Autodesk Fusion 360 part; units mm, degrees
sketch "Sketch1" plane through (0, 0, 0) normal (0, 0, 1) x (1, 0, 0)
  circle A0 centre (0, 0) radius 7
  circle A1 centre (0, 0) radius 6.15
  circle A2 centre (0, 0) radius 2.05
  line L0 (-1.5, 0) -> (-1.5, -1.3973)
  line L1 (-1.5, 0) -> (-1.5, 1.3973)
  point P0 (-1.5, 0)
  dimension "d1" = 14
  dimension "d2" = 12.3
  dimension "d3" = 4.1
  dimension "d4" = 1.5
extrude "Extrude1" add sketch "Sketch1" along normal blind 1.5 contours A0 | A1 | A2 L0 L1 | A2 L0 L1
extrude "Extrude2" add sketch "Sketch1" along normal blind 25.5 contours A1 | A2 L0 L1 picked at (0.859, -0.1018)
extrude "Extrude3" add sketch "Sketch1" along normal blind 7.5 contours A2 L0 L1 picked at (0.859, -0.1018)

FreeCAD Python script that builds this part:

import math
import FreeCAD as App
import Part
import Sketcher

V = App.Vector

doc = App.newDocument("Part")
body = doc.addObject("PartDesign::Body", "Body")

# Sketch on XY plane
sketch1 = doc.addObject("Sketcher::SketchObject", "Sketch")
body.addObject(sketch1)
sketch1.AttachmentSupport = (doc.XY_Plane, [""])
sketch1.MapMode = "FlatFace"
sketch1.addGeometry(Part.Circle(V(0, 0, 0), V(0, 0, 1), 7), False)
sketch1.addConstraint([
    Sketcher.Constraint("Coincident", 0, 3, -1, 1),
    Sketcher.Constraint("Diameter", 0, 14.0),
])
pad1 = doc.addObject("PartDesign::Pad", "Pad")
body.addObject(pad1)
pad1.Profile = sketch1
pad1.Length = 1.5

# Sketch on XY plane
sketch2 = doc.addObject("Sketcher::SketchObject", "Sketch001")
body.addObject(sketch2)
sketch2.AttachmentSupport = (doc.XY_Plane, [""])
sketch2.MapMode = "FlatFace"
sketch2.addGeometry([
    Part.Circle(V(0, 0, 0), V(0, 0, 1), 6.2),
    Part.ArcOfCircle(Part.Circle(V(0, 0, 0), V(0, 0, 1), 2), math.radians(137), math.radians(223)),
    Part.LineSegment(V(-1.5, -1.4, 0), V(-1.5, 1.4, 0)),
], False)
sketch2.addConstraint([
    Sketcher.Constraint("Coincident", 1, 1, 2, 2),
    Sketcher.Constraint("Coincident", 2, 1, 1, 2),
    Sketcher.Constraint("Vertical", 2),
    Sketcher.Constraint("Coincident", 0, 3, -1, 1),
    Sketcher.Constraint("Coincident", 1, 3, -1, 1),
    Sketcher.Constraint("Diameter", 0, 12.3),
    Sketcher.Constraint("Radius", 1, 2.05),
    Sketcher.Constraint("DistanceX", 1, 1, -1, 1, 1.5),
])
pad2 = doc.addObject("PartDesign::Pad", "Pad001")
body.addObject(pad2)
pad2.Profile = sketch2
pad2.Length = 25.5

# Sketch on XY plane
sketch3 = doc.addObject("Sketcher::SketchObject", "Sketch002")
body.addObject(sketch3)
sketch3.AttachmentSupport = (doc.XY_Plane, [""])
sketch3.MapMode = "FlatFace"
sketch3.addGeometry([
    Part.ArcOfCircle(Part.Circle(V(0, 0, 0), V(0, 0, 1), 2), math.radians(-137), math.radians(137)),
    Part.LineSegment(V(-1.5, -1.4, 0), V(-1.5, 1.4, 0)),
], False)
sketch3.addConstraint([
    Sketcher.Constraint("Coincident", 0, 1, 1, 1),
    Sketcher.Constraint("Coincident", 1, 2, 0, 2),
    Sketcher.Constraint("Vertical", 1),
    Sketcher.Constraint("Coincident", 0, 3, -1, 1),
    Sketcher.Constraint("Radius", 0, 2.05),
    Sketcher.Constraint("DistanceX", 0, 1, -1, 1, 1.5),
])
pad3 = doc.addObject("PartDesign::Pad", "Pad002")
body.addObject(pad3)
pad3.Profile = sketch3
pad3.Length = 7.5

doc.recompute()
